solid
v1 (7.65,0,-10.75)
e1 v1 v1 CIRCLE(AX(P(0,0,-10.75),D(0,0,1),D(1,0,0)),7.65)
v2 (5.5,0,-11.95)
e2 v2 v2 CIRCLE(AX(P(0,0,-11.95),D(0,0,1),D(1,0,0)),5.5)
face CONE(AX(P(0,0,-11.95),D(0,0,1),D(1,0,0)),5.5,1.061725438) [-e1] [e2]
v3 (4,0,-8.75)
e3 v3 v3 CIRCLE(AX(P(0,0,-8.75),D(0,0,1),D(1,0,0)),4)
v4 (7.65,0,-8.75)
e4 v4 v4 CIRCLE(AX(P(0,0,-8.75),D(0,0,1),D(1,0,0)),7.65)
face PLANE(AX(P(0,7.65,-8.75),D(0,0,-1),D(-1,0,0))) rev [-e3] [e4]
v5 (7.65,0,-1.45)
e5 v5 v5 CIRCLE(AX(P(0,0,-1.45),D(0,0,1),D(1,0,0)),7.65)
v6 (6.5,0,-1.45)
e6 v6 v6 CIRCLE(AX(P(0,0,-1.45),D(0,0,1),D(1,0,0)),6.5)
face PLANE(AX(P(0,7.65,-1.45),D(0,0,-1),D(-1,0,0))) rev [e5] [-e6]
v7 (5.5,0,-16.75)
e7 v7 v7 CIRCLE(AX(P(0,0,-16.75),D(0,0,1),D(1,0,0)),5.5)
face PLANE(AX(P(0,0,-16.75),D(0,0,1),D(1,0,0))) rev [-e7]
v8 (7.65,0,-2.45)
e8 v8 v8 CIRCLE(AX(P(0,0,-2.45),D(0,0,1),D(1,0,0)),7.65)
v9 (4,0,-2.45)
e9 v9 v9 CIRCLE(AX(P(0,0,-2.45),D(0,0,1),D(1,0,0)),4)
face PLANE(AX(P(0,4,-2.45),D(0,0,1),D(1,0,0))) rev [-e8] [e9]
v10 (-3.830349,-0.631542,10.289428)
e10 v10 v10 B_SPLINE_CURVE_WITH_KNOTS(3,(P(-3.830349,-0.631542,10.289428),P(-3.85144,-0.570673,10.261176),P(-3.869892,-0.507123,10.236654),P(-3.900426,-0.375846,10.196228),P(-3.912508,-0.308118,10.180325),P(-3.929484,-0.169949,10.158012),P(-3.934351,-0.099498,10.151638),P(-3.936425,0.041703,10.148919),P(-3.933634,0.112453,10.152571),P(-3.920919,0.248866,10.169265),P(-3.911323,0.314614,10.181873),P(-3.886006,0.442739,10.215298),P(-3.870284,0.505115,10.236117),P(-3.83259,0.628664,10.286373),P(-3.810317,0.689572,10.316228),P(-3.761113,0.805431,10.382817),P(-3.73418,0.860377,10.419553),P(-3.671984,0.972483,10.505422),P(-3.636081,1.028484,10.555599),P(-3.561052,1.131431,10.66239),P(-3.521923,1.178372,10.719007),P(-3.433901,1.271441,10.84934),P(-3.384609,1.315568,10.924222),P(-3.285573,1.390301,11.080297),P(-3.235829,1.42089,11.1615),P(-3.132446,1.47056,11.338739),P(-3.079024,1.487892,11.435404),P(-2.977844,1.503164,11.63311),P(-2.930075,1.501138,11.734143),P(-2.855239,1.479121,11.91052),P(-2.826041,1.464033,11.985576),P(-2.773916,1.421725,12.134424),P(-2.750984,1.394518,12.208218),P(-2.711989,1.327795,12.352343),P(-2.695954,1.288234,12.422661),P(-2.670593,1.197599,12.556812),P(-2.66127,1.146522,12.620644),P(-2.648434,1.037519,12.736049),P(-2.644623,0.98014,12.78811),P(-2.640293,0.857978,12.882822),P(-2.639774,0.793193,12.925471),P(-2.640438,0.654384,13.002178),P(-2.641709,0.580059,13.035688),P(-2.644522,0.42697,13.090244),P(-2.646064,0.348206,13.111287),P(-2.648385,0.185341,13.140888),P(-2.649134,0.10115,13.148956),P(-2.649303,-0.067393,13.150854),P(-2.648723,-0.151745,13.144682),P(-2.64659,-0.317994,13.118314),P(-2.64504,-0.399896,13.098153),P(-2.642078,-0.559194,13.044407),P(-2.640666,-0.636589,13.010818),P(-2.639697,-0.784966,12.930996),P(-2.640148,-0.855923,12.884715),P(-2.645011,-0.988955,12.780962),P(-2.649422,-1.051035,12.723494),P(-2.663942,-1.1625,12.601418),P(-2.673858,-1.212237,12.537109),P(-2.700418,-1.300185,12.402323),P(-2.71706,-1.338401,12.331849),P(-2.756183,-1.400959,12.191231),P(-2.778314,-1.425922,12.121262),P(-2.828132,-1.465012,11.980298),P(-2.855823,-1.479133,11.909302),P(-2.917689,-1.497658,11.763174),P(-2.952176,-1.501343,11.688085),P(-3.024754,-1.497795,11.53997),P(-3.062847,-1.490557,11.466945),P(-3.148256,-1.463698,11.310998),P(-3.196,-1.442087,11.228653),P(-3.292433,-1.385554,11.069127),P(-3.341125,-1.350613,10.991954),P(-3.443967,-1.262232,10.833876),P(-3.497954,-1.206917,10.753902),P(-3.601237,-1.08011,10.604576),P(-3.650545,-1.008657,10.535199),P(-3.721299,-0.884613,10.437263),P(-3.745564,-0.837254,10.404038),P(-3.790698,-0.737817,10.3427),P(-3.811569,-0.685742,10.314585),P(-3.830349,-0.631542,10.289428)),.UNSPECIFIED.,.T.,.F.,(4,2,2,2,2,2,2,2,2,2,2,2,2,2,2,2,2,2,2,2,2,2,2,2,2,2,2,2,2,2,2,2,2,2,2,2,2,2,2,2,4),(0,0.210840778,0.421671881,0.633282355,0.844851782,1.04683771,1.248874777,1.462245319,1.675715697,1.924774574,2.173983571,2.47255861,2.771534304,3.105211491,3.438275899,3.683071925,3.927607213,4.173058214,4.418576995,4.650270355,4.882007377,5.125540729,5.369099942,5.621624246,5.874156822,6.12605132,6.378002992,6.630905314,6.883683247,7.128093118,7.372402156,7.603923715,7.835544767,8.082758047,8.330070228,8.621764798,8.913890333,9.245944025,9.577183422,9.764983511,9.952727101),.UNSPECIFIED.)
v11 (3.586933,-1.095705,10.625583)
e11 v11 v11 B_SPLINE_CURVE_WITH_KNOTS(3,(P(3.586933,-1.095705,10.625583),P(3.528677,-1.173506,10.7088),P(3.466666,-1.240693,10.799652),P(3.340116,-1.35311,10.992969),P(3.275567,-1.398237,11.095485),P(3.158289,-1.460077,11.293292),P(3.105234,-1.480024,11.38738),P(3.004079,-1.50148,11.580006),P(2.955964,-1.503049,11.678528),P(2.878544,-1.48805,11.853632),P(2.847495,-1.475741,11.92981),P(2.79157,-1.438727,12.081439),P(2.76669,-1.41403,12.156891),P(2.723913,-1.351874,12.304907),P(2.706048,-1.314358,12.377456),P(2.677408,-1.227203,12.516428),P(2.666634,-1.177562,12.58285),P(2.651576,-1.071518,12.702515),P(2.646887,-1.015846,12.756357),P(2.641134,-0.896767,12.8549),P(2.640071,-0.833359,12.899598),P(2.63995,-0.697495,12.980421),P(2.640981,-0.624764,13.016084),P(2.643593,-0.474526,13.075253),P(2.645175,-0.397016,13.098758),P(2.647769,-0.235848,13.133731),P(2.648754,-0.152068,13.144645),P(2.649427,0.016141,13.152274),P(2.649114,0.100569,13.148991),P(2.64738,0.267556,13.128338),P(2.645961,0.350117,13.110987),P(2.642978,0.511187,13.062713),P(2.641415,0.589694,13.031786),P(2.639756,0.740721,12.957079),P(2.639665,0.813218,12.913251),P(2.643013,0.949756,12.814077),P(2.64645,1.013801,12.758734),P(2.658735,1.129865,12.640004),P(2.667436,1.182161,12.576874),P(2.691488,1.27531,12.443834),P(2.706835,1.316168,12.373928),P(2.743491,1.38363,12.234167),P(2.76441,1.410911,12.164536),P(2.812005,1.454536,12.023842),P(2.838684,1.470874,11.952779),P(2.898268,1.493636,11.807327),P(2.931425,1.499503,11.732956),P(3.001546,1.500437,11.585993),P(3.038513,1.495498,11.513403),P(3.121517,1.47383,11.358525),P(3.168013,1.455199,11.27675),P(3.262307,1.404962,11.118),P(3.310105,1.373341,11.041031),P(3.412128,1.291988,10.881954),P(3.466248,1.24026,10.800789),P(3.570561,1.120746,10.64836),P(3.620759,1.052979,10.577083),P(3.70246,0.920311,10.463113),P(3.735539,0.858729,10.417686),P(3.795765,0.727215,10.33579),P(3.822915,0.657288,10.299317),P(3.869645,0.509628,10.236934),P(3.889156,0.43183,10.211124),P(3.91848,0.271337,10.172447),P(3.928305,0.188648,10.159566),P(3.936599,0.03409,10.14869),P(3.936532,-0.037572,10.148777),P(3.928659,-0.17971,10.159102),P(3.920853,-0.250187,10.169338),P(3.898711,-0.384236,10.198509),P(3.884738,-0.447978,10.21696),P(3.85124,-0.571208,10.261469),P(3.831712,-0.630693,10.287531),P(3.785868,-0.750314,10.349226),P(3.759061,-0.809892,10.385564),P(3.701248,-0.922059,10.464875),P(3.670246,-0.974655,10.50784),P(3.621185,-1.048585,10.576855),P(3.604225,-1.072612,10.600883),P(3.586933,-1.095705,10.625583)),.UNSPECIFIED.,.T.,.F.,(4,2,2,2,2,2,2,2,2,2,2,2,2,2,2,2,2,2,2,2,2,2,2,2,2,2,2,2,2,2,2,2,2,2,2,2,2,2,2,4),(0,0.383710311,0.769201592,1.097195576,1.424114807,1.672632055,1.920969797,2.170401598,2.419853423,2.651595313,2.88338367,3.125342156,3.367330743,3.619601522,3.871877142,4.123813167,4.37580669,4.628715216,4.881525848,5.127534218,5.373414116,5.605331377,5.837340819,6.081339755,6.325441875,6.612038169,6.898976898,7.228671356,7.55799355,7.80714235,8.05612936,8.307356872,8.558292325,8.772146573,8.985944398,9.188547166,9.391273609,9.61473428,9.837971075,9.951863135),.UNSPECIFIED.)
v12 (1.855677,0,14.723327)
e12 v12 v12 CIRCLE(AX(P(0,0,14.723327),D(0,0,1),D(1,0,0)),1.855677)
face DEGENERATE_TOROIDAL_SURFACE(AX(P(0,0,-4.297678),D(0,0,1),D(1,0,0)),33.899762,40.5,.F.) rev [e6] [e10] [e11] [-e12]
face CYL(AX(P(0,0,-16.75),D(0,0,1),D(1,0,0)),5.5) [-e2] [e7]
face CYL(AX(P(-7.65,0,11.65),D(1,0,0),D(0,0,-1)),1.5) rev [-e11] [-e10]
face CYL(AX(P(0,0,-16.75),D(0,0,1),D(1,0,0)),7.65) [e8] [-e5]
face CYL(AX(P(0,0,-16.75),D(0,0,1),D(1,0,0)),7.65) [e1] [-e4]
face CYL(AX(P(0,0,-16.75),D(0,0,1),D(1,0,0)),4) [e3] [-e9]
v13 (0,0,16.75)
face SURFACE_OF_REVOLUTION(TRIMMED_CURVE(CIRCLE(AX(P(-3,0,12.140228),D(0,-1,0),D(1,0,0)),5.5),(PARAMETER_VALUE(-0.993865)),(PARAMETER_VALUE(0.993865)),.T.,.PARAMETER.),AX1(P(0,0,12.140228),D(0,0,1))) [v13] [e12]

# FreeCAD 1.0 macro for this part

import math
import FreeCAD as App
import Part
import Sketcher
from FreeCAD import Vector
Q = App.Units.Quantity

doc = App.newDocument("Part")
params = doc.addObject("Spreadsheet::Sheet", "Params")
for row, (alias, value) in enumerate([
    ("sketch1_radius", "40.5 mm"),
    ("sketch1_radius2", "5.5 mm"),
    ("sketch1_height", "2 mm"),
    ("sketch1_height2", "1 mm"),
    ("sketch1_width", "5.5 mm"),
    ("revolution_angle", "360 deg"),
    ("sketch2_diameter", "3 mm"),
], start=1):
    params.set(f"A{row}", alias)
    params.set(f"B{row}", "=" + value)
    params.setAlias(f"B{row}", alias)

body = doc.addObject("PartDesign::Body", "Body")

# Sketch on YZ plane
sketch1 = body.newObject("Sketcher::SketchObject", "Sketch")
sketch1.AttachmentSupport = (doc.getObject("YZ_Plane"), [""])
sketch1.MapMode = "FlatFace"
sketch1.addGeometry(Part.LineSegment(Vector(0, 16.8, 0), Vector(0, -16.8, 0)), False)
sketch1.addGeometry(Part.LineSegment(Vector(0, -16.8, 0), Vector(5.5, -16.8, 0)), False)
sketch1.addGeometry(Part.LineSegment(Vector(5.5, -16.8, 0), Vector(5.5, -11.9, 0)), False)
sketch1.addGeometry(Part.LineSegment(Vector(5.5, -11.9, 0), Vector(7.7, -10.8, 0)), False)
sketch1.addGeometry(Part.LineSegment(Vector(7.7, -10.8, 0), Vector(7.7, -8.8, 0)), False)
sketch1.addGeometry(Part.LineSegment(Vector(7.7, -8.8, 0), Vector(4, -8.8, 0)), False)
sketch1.addGeometry(Part.LineSegment(Vector(4, -8.8, 0), Vector(4, -2.5, 0)), False)
sketch1.addGeometry(Part.LineSegment(Vector(4, -2.5, 0), Vector(7.7, -2.5, 0)), False)
sketch1.addGeometry(Part.LineSegment(Vector(7.7, -2.5, 0), Vector(7.7, -1.4, 0)), False)
sketch1.addGeometry(Part.LineSegment(Vector(7.7, -1.4, 0), Vector(6.5, -1.4, 0)), False)
sketch1.addGeometry(Part.ArcOfCircle(Part.Circle(Vector(-33.9, -4.3, 0), Vector(0, 0, 1), 40.5), math.radians(4), math.radians(28)), False)
sketch1.addGeometry(Part.ArcOfCircle(Part.Circle(Vector(-3, 12.1, 0), Vector(0, 0, 1), 5.5), math.radians(28), math.radians(57)), False)
sketch1.addConstraint(Sketcher.Constraint("Coincident", 0, 2, 1, 1))
sketch1.addConstraint(Sketcher.Constraint("Coincident", 1, 2, 2, 1))
sketch1.addConstraint(Sketcher.Constraint("Coincident", 2, 2, 3, 1))
sketch1.addConstraint(Sketcher.Constraint("Coincident", 3, 2, 4, 1))
sketch1.addConstraint(Sketcher.Constraint("Coincident", 4, 2, 5, 1))
sketch1.addConstraint(Sketcher.Constraint("Coincident", 5, 2, 6, 1))
sketch1.addConstraint(Sketcher.Constraint("Coincident", 6, 2, 7, 1))
sketch1.addConstraint(Sketcher.Constraint("Coincident", 7, 2, 8, 1))
sketch1.addConstraint(Sketcher.Constraint("Coincident", 8, 2, 9, 1))
sketch1.addConstraint(Sketcher.Constraint("Coincident", 9, 2, 10, 1))
sketch1.addConstraint(Sketcher.Constraint("Tangent", 10, 2, 11, 1))
sketch1.addConstraint(Sketcher.Constraint("Coincident", 11, 2, 0, 1))
sketch1.addConstraint(Sketcher.Constraint("Vertical", 0))
sketch1.addConstraint(Sketcher.Constraint("Horizontal", 1))
sketch1.addConstraint(Sketcher.Constraint("Vertical", 2))
sketch1.addConstraint(Sketcher.Constraint("Vertical", 4))
sketch1.addConstraint(Sketcher.Constraint("Horizontal", 5))
sketch1.addConstraint(Sketcher.Constraint("Vertical", 6))
sketch1.addConstraint(Sketcher.Constraint("Horizontal", 7))
sketch1.addConstraint(Sketcher.Constraint("Vertical", 8))
sketch1.addConstraint(Sketcher.Constraint("Horizontal", 9))
sketch1.addConstraint(Sketcher.Constraint("Symmetric", 0, 2, 11, 2, -1, 1))
sketch1.addConstraint(Sketcher.Constraint("Vertical", 4, 2, 7, 2))
sketch1.addConstraint(Sketcher.Constraint("Radius", 10, Q("40.5 mm")))
sketch1.addConstraint(Sketcher.Constraint("Radius", 11, Q("5.5 mm")))
sketch1.addConstraint(Sketcher.Constraint("DistanceY", 4, 1, 4, 2, Q("2 mm")))
sketch1.addConstraint(Sketcher.Constraint("DistanceY", 8, 1, 8, 2, Q("1 mm")))
sketch1.addConstraint(Sketcher.Constraint("DistanceX", 1, 1, 1, 2, Q("5.5 mm")))
sketch1.addConstraint(Sketcher.Constraint("DistanceY", 0, 2, 0, 1, Q("33.5 mm")))
sketch1.addConstraint(Sketcher.Constraint("DistanceY", 2, 1, 2, 2, Q("4.8 mm")))
sketch1.addConstraint(Sketcher.Constraint("DistanceY", 6, 1, 6, 2, Q("6.3 mm")))
sketch1.addConstraint(Sketcher.Constraint("DistanceX", 11, 3, -1, 1, Q("3 mm")))
sketch1.addConstraint(Sketcher.Constraint("DistanceX", -1, 1, 5, 2, Q("4 mm")))
sketch1.addConstraint(Sketcher.Constraint("DistanceY", 1, 2, 3, 2, Q("6 mm")))
sketch1.addConstraint(Sketcher.Constraint("DistanceX", 5, 2, 5, 1, Q("3.65 mm")))
sketch1.addConstraint(Sketcher.Constraint("DistanceX", 9, 2, 9, 1, Q("1.15 mm")))
sketch1.setExpression("Constraints[23]", "Params.sketch1_radius")
sketch1.setExpression("Constraints[24]", "Params.sketch1_radius2")
sketch1.setExpression("Constraints[25]", "Params.sketch1_height")
sketch1.setExpression("Constraints[26]", "Params.sketch1_height2")
sketch1.setExpression("Constraints[27]", "Params.sketch1_width")
revolution = body.newObject("PartDesign::Revolution", "Revolution")
revolution.Profile = sketch1
revolution.ReferenceAxis = (sketch1, ["V_Axis"])
revolution.setExpression("Angle", "Params.revolution_angle")

# Sketch on YZ plane
sketch2 = body.newObject("Sketcher::SketchObject", "Sketch001")
sketch2.AttachmentSupport = (doc.getObject("YZ_Plane"), [""])
sketch2.MapMode = "FlatFace"
sketch2.AttachmentOffset = App.Placement(Vector(0, 0, 7.65), App.Rotation())
sketch2.addGeometry(Part.Circle(Vector(0, 11.7, 0), Vector(0, 0, 1), 1.5), False)
sketch2.addConstraint(Sketcher.Constraint("PointOnObject", 0, 3, -2))
sketch2.addConstraint(Sketcher.Constraint("Diameter", 0, Q("3 mm")))
sketch2.addConstraint(Sketcher.Constraint("DistanceY", -1, 1, 0, 3, Q("11.65 mm")))
sketch2.setExpression("Constraints[1]", "Params.sketch2_diameter")
pocket1 = body.newObject("PartDesign::Pocket", "Pocket")
pocket1.Profile = sketch2
pocket1.Type = "ThroughAll"

doc.recompute()
